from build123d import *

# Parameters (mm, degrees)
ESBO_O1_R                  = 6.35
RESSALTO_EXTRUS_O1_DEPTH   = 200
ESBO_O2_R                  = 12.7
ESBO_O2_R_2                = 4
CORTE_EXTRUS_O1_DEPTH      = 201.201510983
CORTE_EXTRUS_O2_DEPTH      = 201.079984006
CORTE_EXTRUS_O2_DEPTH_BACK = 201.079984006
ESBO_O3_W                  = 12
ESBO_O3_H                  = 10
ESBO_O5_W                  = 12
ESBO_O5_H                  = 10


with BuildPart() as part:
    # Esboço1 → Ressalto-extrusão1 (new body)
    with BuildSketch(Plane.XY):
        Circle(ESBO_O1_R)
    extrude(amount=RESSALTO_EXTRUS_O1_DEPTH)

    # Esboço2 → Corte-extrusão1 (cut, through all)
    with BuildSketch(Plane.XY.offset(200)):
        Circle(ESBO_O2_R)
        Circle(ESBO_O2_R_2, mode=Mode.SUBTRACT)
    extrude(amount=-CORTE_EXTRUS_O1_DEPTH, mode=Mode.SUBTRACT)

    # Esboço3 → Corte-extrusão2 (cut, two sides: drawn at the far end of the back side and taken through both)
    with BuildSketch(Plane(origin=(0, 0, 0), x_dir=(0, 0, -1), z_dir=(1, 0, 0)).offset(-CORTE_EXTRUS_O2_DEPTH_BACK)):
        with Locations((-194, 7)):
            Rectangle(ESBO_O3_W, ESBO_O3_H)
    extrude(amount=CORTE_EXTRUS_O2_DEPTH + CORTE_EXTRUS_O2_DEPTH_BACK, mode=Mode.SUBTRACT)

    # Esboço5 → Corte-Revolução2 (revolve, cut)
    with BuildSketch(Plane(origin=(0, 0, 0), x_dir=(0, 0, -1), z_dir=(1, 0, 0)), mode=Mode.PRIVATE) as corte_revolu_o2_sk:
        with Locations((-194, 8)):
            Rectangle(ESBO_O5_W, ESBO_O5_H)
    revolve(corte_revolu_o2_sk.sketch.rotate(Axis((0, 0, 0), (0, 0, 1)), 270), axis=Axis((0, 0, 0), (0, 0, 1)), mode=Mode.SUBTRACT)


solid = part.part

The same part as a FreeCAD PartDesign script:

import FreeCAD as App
import Part
import Sketcher
from FreeCAD import Vector

doc = App.newDocument("Part")
params = doc.addObject("Spreadsheet::Sheet", "Params")
for row, (alias, value) in enumerate([
    ("sketch1_diameter", "12.7 mm"),
    ("pad1_length", "200 mm"),
    ("sketch2_diameter", "8 mm"),
    ("sketch2_diameter2", "25.4 mm"),
    ("sketch3_width", "10 mm"),
    ("sketch3_height", "12 mm"),
    ("sketch4_width", "10 mm"),
    ("sketch4_height", "12 mm"),
    ("groove_angle", "360 deg"),
], start=1):
    params.set(f"A{row}", alias)
    params.set(f"B{row}", "=" + value)
    params.setAlias(f"B{row}", alias)

body = doc.addObject("PartDesign::Body", "Body")

# Sketch on XY plane
sketch1 = body.newObject("Sketcher::SketchObject", "Sketch")
sketch1.AttachmentSupport = (doc.getObject("XY_Plane"), [""])
sketch1.MapMode = "FlatFace"
sketch1.addGeometry(Part.Circle(Vector(0, 0, 0), Vector(0, 0, 1), 6.35), False)
sketch1.addConstraint([
    Sketcher.Constraint("Coincident", 0, 3, -1, 1),
    Sketcher.Constraint("Diameter", 0, 12.7),
])
sketch1.setExpression("Constraints[1]", "Params.sketch1_diameter")
pad1 = body.newObject("PartDesign::Pad", "Pad")
pad1.Profile = sketch1
pad1.setExpression("Length", "Params.pad1_length")

# Sketch on XY plane
sketch2 = body.newObject("Sketcher::SketchObject", "Sketch001")
sketch2.AttachmentSupport = (doc.getObject("XY_Plane"), [""])
sketch2.MapMode = "FlatFace"
sketch2.AttachmentOffset = App.Placement(Vector(0, 0, 200), App.Rotation())
sketch2.addGeometry([
    Part.Circle(Vector(0, 0, 0), Vector(0, 0, 1), 12.7),
    Part.Circle(Vector(0, 0, 0), Vector(0, 0, 1), 4),
], False)
sketch2.addConstraint([
    Sketcher.Constraint("Coincident", 0, 3, -1, 1),
    Sketcher.Constraint("Coincident", 1, 3, -1, 1),
    Sketcher.Constraint("Diameter", 1, 8.0),
    Sketcher.Constraint("Diameter", 0, 25.4),
])
sketch2.setExpression("Constraints[2]", "Params.sketch2_diameter")
sketch2.setExpression("Constraints[3]", "Params.sketch2_diameter2")
pocket1 = body.newObject("PartDesign::Pocket", "Pocket")
pocket1.Profile = sketch2
pocket1.Type = "ThroughAll"

# Sketch on YZ plane
sketch3 = body.newObject("Sketcher::SketchObject", "Sketch002")
sketch3.AttachmentSupport = (doc.getObject("YZ_Plane"), [""])
sketch3.MapMode = "FlatFace"
sketch3.addGeometry([
    Part.LineSegment(Vector(12, 200, 0), Vector(2, 200, 0)),
    Part.LineSegment(Vector(2, 200, 0), Vector(2, 188, 0)),
    Part.LineSegment(Vector(2, 188, 0), Vector(12, 188, 0)),
    Part.LineSegment(Vector(12, 188, 0), Vector(12, 200, 0)),
], False)
sketch3.addConstraint([
    Sketcher.Constraint("Coincident", 0, 2, 1, 1),
    Sketcher.Constraint("Coincident", 1, 2, 2, 1),
    Sketcher.Constraint("Coincident", 2, 2, 3, 1),
    Sketcher.Constraint("Coincident", 3, 2, 0, 1),
    Sketcher.Constraint("Horizontal", 0),
    Sketcher.Constraint("Vertical", 1),
    Sketcher.Constraint("Horizontal", 2),
    Sketcher.Constraint("Vertical", 3),
    Sketcher.Constraint("DistanceX", 0, 2, 0, 1, 10.0),
    Sketcher.Constraint("DistanceY", 1, 2, 1, 1, 12.0),
    Sketcher.Constraint("DistanceX", -1, 1, 0, 2, 2.0),
    Sketcher.Constraint("DistanceY", -1, 1, 0, 2, 200.0),
])
sketch3.setExpression("Constraints[8]", "Params.sketch3_width")
sketch3.setExpression("Constraints[9]", "Params.sketch3_height")
pocket2 = body.newObject("PartDesign::Pocket", "Pocket001")
pocket2.Profile = sketch3
pocket2.Type = "ThroughAll"
pocket2.Midplane = True

# Sketch on YZ plane
sketch4 = body.newObject("Sketcher::SketchObject", "Sketch003")
sketch4.AttachmentSupport = (doc.getObject("YZ_Plane"), [""])
sketch4.MapMode = "FlatFace"
sketch4.addGeometry([
    Part.LineSegment(Vector(13, 200, 0), Vector(3, 200, 0)),
    Part.LineSegment(Vector(3, 200, 0), Vector(3, 188, 0)),
    Part.LineSegment(Vector(3, 188, 0), Vector(13, 188, 0)),
    Part.LineSegment(Vector(13, 188, 0), Vector(13, 200, 0)),
], False)
sketch4.addConstraint([
    Sketcher.Constraint("Coincident", 0, 2, 1, 1),
    Sketcher.Constraint("Coincident", 1, 2, 2, 1),
    Sketcher.Constraint("Coincident", 2, 2, 3, 1),
    Sketcher.Constraint("Coincident", 3, 2, 0, 1),
    Sketcher.Constraint("Horizontal", 0),
    Sketcher.Constraint("Vertical", 1),
    Sketcher.Constraint("Horizontal", 2),
    Sketcher.Constraint("Vertical", 3),
    Sketcher.Constraint("DistanceX", 0, 2, 0, 1, 10.0),
    Sketcher.Constraint("DistanceY", 1, 2, 1, 1, 12.0),
    Sketcher.Constraint("DistanceX", -1, 1, 0, 2, 3.0),
    Sketcher.Constraint("DistanceY", -1, 1, 0, 2, 200.0),
])
sketch4.setExpression("Constraints[8]", "Params.sketch4_width")
sketch4.setExpression("Constraints[9]", "Params.sketch4_height")
groove = body.newObject("PartDesign::Groove", "Groove")
groove.Profile = sketch4
groove.ReferenceAxis = (sketch4, ["V_Axis"])
groove.setExpression("Angle", "Params.groove_angle")

doc.recompute()
